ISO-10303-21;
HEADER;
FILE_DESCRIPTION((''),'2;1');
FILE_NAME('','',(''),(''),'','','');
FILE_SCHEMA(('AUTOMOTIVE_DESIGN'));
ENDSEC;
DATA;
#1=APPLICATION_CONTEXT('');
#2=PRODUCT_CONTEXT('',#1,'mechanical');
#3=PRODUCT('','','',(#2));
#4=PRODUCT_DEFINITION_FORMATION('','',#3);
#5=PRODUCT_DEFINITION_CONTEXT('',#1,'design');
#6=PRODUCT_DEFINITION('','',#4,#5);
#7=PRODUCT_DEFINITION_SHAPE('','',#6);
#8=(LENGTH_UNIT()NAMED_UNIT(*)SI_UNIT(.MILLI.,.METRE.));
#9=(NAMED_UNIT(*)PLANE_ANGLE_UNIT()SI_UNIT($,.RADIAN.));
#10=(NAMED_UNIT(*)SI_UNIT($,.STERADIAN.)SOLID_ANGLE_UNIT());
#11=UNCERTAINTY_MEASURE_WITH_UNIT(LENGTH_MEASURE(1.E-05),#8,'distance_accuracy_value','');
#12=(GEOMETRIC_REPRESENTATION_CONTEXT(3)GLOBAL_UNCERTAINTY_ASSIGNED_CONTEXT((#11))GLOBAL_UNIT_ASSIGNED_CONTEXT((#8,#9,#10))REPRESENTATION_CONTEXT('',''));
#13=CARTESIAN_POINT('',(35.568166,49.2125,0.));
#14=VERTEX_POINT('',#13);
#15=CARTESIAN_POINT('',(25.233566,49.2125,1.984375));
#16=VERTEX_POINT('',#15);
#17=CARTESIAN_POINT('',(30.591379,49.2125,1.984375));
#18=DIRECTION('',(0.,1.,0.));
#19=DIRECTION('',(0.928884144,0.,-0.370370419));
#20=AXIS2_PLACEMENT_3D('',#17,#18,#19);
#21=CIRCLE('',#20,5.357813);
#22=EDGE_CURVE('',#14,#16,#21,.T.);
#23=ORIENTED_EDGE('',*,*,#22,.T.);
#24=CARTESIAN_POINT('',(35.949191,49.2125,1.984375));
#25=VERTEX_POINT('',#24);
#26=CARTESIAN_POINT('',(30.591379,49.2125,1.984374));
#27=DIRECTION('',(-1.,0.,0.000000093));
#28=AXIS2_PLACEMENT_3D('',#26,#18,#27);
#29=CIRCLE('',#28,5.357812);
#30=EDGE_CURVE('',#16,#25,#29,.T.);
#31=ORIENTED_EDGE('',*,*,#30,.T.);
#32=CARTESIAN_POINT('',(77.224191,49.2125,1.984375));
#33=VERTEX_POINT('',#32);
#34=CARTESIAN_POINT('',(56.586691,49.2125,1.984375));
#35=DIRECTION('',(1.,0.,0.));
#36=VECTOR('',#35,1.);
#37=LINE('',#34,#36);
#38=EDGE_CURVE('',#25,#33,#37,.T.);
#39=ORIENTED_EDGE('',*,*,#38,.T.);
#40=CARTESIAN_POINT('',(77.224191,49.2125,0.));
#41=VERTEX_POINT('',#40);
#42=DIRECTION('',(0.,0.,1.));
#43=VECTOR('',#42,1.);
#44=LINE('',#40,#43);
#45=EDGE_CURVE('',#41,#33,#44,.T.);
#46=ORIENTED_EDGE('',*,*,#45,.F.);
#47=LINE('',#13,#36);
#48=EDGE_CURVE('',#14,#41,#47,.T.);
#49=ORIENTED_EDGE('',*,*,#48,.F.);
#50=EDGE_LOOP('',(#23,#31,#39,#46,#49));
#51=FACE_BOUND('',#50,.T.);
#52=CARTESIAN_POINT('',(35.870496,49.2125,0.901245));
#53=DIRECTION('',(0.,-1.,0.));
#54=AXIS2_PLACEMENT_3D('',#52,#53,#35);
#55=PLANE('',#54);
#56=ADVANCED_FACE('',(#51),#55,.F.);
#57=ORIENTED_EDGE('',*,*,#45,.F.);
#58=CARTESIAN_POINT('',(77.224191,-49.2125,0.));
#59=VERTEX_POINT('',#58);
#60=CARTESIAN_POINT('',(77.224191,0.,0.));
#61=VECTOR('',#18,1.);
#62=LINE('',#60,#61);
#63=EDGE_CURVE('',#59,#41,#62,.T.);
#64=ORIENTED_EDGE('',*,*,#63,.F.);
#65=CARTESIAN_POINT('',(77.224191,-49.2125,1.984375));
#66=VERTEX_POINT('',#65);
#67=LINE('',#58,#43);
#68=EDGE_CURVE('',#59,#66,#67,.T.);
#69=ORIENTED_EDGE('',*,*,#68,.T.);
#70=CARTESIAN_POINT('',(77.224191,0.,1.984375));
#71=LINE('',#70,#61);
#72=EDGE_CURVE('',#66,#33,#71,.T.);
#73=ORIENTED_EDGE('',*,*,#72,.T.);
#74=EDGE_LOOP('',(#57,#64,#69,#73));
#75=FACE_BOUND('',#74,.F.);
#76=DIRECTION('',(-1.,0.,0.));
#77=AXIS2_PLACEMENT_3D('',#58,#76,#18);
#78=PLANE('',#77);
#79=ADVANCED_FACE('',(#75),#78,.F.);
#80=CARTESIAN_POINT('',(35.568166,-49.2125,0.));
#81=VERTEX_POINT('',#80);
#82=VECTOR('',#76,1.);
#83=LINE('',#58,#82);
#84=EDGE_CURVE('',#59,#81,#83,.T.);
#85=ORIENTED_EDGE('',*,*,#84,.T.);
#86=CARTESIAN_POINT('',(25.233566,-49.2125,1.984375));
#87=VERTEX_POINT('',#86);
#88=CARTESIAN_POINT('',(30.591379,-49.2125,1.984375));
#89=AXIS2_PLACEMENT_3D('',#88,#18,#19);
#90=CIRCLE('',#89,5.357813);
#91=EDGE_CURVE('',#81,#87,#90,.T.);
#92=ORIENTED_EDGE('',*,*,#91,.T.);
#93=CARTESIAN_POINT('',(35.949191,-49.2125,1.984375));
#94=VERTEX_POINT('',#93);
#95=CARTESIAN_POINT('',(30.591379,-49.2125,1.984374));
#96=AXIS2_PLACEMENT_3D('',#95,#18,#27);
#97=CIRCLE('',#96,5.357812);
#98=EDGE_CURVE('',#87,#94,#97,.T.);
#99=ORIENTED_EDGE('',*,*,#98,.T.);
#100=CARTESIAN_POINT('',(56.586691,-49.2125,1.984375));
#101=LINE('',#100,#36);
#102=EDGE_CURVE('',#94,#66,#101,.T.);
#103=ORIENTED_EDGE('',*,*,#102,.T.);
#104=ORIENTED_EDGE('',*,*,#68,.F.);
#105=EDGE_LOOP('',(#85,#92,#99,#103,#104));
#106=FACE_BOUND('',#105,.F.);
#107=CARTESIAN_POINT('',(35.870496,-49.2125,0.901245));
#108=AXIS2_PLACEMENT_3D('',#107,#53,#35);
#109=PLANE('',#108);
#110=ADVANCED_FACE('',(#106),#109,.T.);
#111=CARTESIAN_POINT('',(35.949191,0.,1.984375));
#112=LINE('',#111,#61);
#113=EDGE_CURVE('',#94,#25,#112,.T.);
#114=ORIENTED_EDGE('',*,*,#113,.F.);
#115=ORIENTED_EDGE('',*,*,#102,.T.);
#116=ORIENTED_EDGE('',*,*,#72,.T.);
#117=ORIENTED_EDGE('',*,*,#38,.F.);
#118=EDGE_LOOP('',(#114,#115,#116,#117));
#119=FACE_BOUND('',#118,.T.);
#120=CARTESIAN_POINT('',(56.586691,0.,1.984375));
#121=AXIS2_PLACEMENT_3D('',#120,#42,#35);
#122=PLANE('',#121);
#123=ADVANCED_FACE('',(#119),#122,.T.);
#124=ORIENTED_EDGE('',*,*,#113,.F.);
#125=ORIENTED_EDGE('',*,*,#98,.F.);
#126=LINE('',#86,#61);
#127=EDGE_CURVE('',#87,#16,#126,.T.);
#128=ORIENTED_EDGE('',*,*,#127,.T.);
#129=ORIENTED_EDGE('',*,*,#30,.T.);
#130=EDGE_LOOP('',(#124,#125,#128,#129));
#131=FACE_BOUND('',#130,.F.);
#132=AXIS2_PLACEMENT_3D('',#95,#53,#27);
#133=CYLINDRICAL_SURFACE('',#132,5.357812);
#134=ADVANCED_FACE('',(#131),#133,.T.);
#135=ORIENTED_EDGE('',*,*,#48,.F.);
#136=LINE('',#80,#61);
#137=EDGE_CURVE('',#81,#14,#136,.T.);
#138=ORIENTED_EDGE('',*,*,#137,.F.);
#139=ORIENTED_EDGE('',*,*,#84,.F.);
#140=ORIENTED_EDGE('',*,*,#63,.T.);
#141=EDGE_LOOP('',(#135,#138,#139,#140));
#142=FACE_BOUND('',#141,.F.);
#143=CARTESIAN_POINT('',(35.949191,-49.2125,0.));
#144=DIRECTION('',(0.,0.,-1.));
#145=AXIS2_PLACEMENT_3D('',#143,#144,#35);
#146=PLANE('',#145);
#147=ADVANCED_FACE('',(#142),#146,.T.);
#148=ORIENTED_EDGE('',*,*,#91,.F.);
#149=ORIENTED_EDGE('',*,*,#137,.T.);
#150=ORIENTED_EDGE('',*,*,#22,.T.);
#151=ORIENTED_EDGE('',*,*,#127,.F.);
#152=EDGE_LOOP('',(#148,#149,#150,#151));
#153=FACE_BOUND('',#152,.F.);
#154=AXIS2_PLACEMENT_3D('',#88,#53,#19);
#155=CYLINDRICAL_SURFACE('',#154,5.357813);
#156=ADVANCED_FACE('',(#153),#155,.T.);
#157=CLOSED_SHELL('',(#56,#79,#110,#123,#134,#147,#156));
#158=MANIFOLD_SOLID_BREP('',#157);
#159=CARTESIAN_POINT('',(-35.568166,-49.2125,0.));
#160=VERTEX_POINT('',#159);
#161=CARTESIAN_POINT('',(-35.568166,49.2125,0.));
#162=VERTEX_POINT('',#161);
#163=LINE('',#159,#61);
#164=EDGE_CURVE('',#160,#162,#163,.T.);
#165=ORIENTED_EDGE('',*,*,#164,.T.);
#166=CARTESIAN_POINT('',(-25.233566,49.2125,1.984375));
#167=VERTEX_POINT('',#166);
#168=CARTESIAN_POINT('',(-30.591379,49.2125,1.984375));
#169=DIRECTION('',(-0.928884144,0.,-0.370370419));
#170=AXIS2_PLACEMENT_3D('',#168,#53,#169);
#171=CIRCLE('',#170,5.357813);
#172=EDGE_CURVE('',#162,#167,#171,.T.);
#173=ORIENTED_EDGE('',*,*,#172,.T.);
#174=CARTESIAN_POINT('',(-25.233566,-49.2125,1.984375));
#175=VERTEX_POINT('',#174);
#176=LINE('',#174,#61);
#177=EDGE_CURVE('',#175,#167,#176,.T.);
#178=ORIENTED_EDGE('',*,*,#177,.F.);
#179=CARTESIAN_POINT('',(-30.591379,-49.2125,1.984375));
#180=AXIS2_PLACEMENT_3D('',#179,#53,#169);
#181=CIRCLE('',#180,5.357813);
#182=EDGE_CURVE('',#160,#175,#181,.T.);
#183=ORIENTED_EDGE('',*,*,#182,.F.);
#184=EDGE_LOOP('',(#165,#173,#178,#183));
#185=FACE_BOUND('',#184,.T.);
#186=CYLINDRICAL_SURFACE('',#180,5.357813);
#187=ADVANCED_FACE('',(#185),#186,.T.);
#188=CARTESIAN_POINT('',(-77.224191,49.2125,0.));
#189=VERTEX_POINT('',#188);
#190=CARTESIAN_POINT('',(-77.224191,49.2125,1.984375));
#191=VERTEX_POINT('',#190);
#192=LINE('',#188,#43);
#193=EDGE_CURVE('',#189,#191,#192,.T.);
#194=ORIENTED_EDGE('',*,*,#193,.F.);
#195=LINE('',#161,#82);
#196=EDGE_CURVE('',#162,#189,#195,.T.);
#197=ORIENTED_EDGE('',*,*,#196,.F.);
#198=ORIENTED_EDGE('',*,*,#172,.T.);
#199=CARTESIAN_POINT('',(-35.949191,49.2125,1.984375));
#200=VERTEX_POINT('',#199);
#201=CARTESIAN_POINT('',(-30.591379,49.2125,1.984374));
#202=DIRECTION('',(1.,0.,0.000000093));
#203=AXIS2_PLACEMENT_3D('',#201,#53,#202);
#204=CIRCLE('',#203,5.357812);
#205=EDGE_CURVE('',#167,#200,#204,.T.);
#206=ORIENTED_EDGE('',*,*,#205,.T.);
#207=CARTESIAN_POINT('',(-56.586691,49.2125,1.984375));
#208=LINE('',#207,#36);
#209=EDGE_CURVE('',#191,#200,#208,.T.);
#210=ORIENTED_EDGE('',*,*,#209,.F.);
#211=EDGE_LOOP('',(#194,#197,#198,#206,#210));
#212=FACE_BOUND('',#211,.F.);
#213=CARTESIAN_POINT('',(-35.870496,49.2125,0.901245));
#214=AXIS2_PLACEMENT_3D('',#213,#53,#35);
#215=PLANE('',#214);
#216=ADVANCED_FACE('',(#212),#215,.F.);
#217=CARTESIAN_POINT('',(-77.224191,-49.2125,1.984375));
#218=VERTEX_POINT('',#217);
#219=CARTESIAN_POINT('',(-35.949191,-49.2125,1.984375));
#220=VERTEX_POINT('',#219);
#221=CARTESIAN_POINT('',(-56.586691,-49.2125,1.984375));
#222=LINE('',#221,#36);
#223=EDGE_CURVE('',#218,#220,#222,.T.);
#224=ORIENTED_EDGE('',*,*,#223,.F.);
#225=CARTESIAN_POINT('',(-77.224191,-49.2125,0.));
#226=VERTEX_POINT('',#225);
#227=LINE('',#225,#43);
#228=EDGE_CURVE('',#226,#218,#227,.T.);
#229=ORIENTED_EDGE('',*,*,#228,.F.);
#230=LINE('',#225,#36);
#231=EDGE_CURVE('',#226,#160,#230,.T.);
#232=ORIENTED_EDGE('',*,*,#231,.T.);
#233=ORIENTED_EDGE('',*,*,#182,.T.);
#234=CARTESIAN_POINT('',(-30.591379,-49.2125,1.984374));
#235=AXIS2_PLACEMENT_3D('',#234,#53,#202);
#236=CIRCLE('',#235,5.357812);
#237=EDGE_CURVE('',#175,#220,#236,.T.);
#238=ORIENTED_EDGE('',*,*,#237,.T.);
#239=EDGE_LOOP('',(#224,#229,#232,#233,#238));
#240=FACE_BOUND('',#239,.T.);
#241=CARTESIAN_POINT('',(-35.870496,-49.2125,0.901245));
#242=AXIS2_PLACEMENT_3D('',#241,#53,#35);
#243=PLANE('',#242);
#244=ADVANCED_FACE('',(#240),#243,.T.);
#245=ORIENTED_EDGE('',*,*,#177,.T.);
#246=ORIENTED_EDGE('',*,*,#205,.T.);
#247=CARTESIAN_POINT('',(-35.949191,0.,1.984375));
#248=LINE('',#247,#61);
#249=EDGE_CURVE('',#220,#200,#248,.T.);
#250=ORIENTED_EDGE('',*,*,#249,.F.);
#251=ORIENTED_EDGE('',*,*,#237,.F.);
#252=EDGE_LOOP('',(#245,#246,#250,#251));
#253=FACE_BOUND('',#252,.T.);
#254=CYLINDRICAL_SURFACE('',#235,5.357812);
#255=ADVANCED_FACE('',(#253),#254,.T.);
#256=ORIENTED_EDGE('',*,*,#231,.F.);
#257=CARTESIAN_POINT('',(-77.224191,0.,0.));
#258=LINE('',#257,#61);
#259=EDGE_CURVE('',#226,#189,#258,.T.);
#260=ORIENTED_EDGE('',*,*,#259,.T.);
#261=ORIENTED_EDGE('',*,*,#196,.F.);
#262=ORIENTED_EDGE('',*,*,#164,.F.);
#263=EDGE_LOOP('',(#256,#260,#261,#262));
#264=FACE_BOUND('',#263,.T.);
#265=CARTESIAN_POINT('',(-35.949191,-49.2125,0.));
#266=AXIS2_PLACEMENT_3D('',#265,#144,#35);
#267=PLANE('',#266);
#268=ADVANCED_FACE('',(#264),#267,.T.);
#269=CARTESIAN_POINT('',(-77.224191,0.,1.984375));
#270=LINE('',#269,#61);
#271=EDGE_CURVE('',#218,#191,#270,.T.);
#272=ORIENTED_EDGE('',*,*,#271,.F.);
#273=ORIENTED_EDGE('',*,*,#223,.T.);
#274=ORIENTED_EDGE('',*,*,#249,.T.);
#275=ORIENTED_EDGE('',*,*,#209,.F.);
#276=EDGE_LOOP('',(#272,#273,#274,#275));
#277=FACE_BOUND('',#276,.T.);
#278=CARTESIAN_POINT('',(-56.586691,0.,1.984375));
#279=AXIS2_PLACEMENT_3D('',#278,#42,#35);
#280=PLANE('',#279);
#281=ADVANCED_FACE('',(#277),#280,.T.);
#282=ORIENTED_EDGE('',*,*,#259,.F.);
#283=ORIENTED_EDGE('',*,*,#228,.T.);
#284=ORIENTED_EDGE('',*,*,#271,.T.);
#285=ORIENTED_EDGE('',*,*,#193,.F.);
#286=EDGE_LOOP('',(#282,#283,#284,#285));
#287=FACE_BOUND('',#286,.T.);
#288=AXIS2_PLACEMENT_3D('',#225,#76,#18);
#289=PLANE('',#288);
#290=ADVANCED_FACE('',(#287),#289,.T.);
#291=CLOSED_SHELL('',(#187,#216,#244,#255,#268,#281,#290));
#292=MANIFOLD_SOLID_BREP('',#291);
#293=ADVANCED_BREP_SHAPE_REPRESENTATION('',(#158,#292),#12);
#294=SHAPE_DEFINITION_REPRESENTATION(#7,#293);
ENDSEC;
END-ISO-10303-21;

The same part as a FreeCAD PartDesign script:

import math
import FreeCAD as App
import Part
import Sketcher
from FreeCAD import Vector
Q = App.Units.Quantity

doc = App.newDocument("Part")
body = doc.addObject("PartDesign::Body", "Body")
body.AllowCompound = True

# Sketch on XY plane
sketch1 = body.newObject("Sketcher::SketchObject", "Sketch")
sketch1.AttachmentSupport = (doc.getObject("XY_Plane"), [""])
sketch1.MapMode = "FlatFace"
sketch1.addGeometry(Part.LineSegment(Vector(-77, 49, 0), Vector(-77, -49, 0)), False)
sketch1.addGeometry(Part.LineSegment(Vector(-77, -49, 0), Vector(-36, -49, 0)), False)
sketch1.addGeometry(Part.LineSegment(Vector(-36, -49, 0), Vector(-36, 49, 0)), False)
sketch1.addGeometry(Part.LineSegment(Vector(-36, 49, 0), Vector(-77, 49, 0)), False)
sketch1.addGeometry(Part.LineSegment(Vector(36, 49, 0), Vector(36, -49, 0)), False)
sketch1.addGeometry(Part.LineSegment(Vector(36, -49, 0), Vector(77, -49, 0)), False)
sketch1.addGeometry(Part.LineSegment(Vector(77, -49, 0), Vector(77, 49, 0)), False)
sketch1.addGeometry(Part.LineSegment(Vector(77, 49, 0), Vector(36, 49, 0)), False)
sketch1.addConstraint(Sketcher.Constraint("Coincident", 0, 2, 1, 1))
sketch1.addConstraint(Sketcher.Constraint("Coincident", 1, 2, 2, 1))
sketch1.addConstraint(Sketcher.Constraint("Coincident", 2, 2, 3, 1))
sketch1.addConstraint(Sketcher.Constraint("Coincident", 3, 2, 0, 1))
sketch1.addConstraint(Sketcher.Constraint("Coincident", 4, 2, 5, 1))
sketch1.addConstraint(Sketcher.Constraint("Coincident", 5, 2, 6, 1))
sketch1.addConstraint(Sketcher.Constraint("Coincident", 6, 2, 7, 1))
sketch1.addConstraint(Sketcher.Constraint("Coincident", 7, 2, 4, 1))
sketch1.addConstraint(Sketcher.Constraint("Vertical", 0))
sketch1.addConstraint(Sketcher.Constraint("Horizontal", 1))
sketch1.addConstraint(Sketcher.Constraint("Vertical", 2))
sketch1.addConstraint(Sketcher.Constraint("Horizontal", 3))
sketch1.addConstraint(Sketcher.Constraint("Vertical", 4))
sketch1.addConstraint(Sketcher.Constraint("Horizontal", 5))
sketch1.addConstraint(Sketcher.Constraint("Vertical", 6))
sketch1.addConstraint(Sketcher.Constraint("Horizontal", 7))
sketch1.addConstraint(Sketcher.Constraint("Symmetric", 2, 2, 4, 2, -1, 1))
sketch1.addConstraint(Sketcher.Constraint("Symmetric", 0, 2, 6, 2, -1, 1))
sketch1.addConstraint(Sketcher.Constraint("Horizontal", 1, 2, 4, 2))
sketch1.addConstraint(Sketcher.Constraint("DistanceX", 1, 1, 1, 2, Q("1.625 in")))
sketch1.addConstraint(Sketcher.Constraint("DistanceY", 0, 2, 0, 1, Q("3.875 in")))
sketch1.addConstraint(Sketcher.Constraint("DistanceX", 0, 2, -1, 1, 77.224191))
pad1 = body.newObject("PartDesign::Pad", "Pad")
pad1.Profile = sketch1
pad1.Length = Q("0.078125 in")

# Sketch on XZ plane
sketch2 = body.newObject("Sketcher::SketchObject", "Sketch001")
sketch2.AttachmentSupport = (doc.getObject("XZ_Plane"), [""])
sketch2.MapMode = "FlatFace"
sketch2.AttachmentOffset = App.Placement(Vector(0, 0, 1.9375 * 25.4), App.Rotation())
sketch2.addGeometry(Part.LineSegment(Vector(-35.95, 1.98, 0), Vector(-35.95, 0, 0)), False)
sketch2.addGeometry(Part.LineSegment(Vector(-35.95, 0, 0), Vector(-35.57, 0, 0)), False)
sketch2.addGeometry(Part.ArcOfCircle(Part.Circle(Vector(-30.59, 1.98, 0), Vector(0, 0, 1), 5.36), math.radians(-158), math.radians(0)), False)
sketch2.addGeometry(Part.ArcOfCircle(Part.Circle(Vector(-30.59, 1.98, 0), Vector(0, 0, 1), 5.36), math.radians(0), math.radians(180)), False)
sketch2.addConstraint(Sketcher.Constraint("Coincident", 0, 2, 1, 1))
sketch2.addConstraint(Sketcher.Constraint("Coincident", 1, 2, 2, 1))
sketch2.addConstraint(Sketcher.Constraint("Tangent", 2, 2, 3, 1))
sketch2.addConstraint(Sketcher.Constraint("Tangent", 3, 2, 0, 1))
sketch2.addConstraint(Sketcher.Constraint("Vertical", 0))
sketch2.addConstraint(Sketcher.Constraint("Horizontal", 1))
sketch2.addConstraint(Sketcher.Constraint("Equal", 2, 3))
sketch2.addConstraint(Sketcher.Constraint("PointOnObject", 0, 2, -1))
sketch2.addConstraint(Sketcher.Constraint("Horizontal", 3, 3, 2, 2))
sketch2.addConstraint(Sketcher.Constraint("DistanceY", 0, 2, 0, 1, Q("0.078125 in")))
sketch2.addConstraint(Sketcher.Constraint("DistanceX", 0, 2, 2, 2, Q("0.421875 in")))
sketch2.addConstraint(Sketcher.Constraint("DistanceX", 2, 3, -1, 1, 30.591379))
pad2 = body.newObject("PartDesign::Pad", "Pad001")
pad2.Profile = sketch2
pad2.Length = Q("3.875 in")
pad2.Reversed = True
body2 = doc.addObject("PartDesign::Body", "Body001")
body2.AllowCompound = True
doc.recompute()

body2.BaseFeature = body
doc.recompute()

mirroring = doc.addObject("Part::Mirroring", "Mirroring")
mirroring.Source = body
mirroring.Base = Vector(0, 0, 0)
mirroring.Normal = Vector(1, 0, 0)
body3 = doc.addObject("PartDesign::Body", "Body002")
body3.BaseFeature = mirroring
boolean = body2.newObject("PartDesign::Boolean", "Boolean")
boolean.Type = "Fuse"
boolean.addObjects([body3])
doc.recompute()
mirroring.Visibility = False

doc.recompute()
